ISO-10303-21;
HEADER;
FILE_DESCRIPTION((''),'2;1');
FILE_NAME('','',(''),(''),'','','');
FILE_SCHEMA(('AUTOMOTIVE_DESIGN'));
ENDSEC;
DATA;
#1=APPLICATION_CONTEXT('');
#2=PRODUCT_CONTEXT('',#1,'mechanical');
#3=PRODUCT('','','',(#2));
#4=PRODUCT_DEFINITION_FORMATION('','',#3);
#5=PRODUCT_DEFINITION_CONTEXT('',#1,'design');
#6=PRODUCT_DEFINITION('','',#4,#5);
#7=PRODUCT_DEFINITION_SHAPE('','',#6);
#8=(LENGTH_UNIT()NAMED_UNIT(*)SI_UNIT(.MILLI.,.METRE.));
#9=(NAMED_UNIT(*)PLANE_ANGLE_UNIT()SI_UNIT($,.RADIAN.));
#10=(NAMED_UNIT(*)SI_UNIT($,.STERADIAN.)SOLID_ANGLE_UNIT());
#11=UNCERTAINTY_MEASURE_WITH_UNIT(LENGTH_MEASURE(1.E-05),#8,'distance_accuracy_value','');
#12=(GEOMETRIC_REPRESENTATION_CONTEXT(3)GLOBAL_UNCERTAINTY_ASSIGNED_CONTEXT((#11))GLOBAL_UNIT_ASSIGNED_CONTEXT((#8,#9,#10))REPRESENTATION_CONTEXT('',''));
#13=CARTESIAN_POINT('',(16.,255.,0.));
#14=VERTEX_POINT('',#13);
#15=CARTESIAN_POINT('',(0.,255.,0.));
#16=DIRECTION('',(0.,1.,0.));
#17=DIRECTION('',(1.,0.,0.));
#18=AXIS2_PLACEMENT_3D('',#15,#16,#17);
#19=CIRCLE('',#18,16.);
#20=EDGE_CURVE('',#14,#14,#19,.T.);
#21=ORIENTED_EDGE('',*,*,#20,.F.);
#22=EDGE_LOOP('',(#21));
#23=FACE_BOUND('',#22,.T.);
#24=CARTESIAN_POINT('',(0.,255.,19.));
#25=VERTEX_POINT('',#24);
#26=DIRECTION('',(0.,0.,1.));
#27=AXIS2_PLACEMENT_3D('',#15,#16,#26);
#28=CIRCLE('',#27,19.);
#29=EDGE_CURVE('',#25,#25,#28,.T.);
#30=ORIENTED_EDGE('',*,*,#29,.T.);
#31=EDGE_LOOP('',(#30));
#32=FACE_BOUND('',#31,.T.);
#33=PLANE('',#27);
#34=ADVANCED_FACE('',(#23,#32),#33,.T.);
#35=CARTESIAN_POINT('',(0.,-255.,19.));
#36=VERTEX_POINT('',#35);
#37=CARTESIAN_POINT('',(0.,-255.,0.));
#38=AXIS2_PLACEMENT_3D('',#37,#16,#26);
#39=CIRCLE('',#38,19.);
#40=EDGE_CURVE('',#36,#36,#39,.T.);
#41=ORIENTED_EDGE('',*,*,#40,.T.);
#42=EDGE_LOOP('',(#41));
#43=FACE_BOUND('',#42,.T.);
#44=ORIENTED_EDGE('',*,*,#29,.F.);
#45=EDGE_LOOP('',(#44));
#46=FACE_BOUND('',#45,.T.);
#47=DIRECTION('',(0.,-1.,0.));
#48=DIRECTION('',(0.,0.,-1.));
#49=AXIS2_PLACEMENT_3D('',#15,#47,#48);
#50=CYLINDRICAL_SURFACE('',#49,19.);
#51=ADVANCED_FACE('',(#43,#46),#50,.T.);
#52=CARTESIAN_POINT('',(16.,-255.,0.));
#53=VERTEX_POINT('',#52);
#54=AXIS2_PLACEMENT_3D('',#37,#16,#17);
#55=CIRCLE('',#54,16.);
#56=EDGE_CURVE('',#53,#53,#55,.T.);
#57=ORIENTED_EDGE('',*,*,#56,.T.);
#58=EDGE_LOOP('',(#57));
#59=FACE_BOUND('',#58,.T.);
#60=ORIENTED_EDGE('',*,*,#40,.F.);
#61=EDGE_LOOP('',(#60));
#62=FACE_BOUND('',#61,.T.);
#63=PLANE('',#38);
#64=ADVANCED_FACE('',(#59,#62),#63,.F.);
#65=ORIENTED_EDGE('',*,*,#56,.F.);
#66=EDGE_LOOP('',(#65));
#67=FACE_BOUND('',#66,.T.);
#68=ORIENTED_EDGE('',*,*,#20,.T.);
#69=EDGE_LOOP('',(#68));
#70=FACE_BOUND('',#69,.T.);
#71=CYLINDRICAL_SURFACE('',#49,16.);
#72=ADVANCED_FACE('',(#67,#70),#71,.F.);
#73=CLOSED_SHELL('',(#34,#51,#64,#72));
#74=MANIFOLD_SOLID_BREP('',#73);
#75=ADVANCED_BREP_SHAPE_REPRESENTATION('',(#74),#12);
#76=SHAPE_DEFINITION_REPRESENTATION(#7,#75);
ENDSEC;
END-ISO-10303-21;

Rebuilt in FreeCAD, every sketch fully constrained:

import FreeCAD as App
import Part
import Sketcher

V = App.Vector

doc = App.newDocument("Part")
params = doc.addObject("Spreadsheet::Sheet", "Params")
for row, (alias, value) in enumerate([
    ("sketch1_diameter", "38 mm"),
    ("sketch1_diameter2", "32 mm"),
    ("pad1_length", "510 mm"),
], start=1):
    params.set(f"A{row}", alias)
    params.set(f"B{row}", "=" + value)
    params.setAlias(f"B{row}", alias)

body = doc.addObject("PartDesign::Body", "Body")

sketch1 = body.newObject("Sketcher::SketchObject", "Sketch")
sketch1.AttachmentSupport = (doc.getObject("XZ_Plane"), [""])
sketch1.MapMode = "FlatFace"
sketch1.addGeometry([
    Part.Circle(V(0, 0, 0), V(0, 0, 1), 19),
    Part.Circle(V(0, 0, 0), V(0, 0, 1), 16),
], False)
sketch1.addConstraint([
    Sketcher.Constraint("Coincident", 0, 3, -1, 1),
    Sketcher.Constraint("Coincident", 1, 3, -1, 1),
    Sketcher.Constraint("Diameter", 0, 38.0),
    Sketcher.Constraint("Diameter", 1, 32.0),
])
sketch1.setExpression("Constraints[2]", "Params.sketch1_diameter")
sketch1.setExpression("Constraints[3]", "Params.sketch1_diameter2")
pad1 = body.newObject("PartDesign::Pad", "Pad")
pad1.Profile = sketch1
pad1.setExpression("Length", "Params.pad1_length")
pad1.Midplane = True

doc.recompute()
